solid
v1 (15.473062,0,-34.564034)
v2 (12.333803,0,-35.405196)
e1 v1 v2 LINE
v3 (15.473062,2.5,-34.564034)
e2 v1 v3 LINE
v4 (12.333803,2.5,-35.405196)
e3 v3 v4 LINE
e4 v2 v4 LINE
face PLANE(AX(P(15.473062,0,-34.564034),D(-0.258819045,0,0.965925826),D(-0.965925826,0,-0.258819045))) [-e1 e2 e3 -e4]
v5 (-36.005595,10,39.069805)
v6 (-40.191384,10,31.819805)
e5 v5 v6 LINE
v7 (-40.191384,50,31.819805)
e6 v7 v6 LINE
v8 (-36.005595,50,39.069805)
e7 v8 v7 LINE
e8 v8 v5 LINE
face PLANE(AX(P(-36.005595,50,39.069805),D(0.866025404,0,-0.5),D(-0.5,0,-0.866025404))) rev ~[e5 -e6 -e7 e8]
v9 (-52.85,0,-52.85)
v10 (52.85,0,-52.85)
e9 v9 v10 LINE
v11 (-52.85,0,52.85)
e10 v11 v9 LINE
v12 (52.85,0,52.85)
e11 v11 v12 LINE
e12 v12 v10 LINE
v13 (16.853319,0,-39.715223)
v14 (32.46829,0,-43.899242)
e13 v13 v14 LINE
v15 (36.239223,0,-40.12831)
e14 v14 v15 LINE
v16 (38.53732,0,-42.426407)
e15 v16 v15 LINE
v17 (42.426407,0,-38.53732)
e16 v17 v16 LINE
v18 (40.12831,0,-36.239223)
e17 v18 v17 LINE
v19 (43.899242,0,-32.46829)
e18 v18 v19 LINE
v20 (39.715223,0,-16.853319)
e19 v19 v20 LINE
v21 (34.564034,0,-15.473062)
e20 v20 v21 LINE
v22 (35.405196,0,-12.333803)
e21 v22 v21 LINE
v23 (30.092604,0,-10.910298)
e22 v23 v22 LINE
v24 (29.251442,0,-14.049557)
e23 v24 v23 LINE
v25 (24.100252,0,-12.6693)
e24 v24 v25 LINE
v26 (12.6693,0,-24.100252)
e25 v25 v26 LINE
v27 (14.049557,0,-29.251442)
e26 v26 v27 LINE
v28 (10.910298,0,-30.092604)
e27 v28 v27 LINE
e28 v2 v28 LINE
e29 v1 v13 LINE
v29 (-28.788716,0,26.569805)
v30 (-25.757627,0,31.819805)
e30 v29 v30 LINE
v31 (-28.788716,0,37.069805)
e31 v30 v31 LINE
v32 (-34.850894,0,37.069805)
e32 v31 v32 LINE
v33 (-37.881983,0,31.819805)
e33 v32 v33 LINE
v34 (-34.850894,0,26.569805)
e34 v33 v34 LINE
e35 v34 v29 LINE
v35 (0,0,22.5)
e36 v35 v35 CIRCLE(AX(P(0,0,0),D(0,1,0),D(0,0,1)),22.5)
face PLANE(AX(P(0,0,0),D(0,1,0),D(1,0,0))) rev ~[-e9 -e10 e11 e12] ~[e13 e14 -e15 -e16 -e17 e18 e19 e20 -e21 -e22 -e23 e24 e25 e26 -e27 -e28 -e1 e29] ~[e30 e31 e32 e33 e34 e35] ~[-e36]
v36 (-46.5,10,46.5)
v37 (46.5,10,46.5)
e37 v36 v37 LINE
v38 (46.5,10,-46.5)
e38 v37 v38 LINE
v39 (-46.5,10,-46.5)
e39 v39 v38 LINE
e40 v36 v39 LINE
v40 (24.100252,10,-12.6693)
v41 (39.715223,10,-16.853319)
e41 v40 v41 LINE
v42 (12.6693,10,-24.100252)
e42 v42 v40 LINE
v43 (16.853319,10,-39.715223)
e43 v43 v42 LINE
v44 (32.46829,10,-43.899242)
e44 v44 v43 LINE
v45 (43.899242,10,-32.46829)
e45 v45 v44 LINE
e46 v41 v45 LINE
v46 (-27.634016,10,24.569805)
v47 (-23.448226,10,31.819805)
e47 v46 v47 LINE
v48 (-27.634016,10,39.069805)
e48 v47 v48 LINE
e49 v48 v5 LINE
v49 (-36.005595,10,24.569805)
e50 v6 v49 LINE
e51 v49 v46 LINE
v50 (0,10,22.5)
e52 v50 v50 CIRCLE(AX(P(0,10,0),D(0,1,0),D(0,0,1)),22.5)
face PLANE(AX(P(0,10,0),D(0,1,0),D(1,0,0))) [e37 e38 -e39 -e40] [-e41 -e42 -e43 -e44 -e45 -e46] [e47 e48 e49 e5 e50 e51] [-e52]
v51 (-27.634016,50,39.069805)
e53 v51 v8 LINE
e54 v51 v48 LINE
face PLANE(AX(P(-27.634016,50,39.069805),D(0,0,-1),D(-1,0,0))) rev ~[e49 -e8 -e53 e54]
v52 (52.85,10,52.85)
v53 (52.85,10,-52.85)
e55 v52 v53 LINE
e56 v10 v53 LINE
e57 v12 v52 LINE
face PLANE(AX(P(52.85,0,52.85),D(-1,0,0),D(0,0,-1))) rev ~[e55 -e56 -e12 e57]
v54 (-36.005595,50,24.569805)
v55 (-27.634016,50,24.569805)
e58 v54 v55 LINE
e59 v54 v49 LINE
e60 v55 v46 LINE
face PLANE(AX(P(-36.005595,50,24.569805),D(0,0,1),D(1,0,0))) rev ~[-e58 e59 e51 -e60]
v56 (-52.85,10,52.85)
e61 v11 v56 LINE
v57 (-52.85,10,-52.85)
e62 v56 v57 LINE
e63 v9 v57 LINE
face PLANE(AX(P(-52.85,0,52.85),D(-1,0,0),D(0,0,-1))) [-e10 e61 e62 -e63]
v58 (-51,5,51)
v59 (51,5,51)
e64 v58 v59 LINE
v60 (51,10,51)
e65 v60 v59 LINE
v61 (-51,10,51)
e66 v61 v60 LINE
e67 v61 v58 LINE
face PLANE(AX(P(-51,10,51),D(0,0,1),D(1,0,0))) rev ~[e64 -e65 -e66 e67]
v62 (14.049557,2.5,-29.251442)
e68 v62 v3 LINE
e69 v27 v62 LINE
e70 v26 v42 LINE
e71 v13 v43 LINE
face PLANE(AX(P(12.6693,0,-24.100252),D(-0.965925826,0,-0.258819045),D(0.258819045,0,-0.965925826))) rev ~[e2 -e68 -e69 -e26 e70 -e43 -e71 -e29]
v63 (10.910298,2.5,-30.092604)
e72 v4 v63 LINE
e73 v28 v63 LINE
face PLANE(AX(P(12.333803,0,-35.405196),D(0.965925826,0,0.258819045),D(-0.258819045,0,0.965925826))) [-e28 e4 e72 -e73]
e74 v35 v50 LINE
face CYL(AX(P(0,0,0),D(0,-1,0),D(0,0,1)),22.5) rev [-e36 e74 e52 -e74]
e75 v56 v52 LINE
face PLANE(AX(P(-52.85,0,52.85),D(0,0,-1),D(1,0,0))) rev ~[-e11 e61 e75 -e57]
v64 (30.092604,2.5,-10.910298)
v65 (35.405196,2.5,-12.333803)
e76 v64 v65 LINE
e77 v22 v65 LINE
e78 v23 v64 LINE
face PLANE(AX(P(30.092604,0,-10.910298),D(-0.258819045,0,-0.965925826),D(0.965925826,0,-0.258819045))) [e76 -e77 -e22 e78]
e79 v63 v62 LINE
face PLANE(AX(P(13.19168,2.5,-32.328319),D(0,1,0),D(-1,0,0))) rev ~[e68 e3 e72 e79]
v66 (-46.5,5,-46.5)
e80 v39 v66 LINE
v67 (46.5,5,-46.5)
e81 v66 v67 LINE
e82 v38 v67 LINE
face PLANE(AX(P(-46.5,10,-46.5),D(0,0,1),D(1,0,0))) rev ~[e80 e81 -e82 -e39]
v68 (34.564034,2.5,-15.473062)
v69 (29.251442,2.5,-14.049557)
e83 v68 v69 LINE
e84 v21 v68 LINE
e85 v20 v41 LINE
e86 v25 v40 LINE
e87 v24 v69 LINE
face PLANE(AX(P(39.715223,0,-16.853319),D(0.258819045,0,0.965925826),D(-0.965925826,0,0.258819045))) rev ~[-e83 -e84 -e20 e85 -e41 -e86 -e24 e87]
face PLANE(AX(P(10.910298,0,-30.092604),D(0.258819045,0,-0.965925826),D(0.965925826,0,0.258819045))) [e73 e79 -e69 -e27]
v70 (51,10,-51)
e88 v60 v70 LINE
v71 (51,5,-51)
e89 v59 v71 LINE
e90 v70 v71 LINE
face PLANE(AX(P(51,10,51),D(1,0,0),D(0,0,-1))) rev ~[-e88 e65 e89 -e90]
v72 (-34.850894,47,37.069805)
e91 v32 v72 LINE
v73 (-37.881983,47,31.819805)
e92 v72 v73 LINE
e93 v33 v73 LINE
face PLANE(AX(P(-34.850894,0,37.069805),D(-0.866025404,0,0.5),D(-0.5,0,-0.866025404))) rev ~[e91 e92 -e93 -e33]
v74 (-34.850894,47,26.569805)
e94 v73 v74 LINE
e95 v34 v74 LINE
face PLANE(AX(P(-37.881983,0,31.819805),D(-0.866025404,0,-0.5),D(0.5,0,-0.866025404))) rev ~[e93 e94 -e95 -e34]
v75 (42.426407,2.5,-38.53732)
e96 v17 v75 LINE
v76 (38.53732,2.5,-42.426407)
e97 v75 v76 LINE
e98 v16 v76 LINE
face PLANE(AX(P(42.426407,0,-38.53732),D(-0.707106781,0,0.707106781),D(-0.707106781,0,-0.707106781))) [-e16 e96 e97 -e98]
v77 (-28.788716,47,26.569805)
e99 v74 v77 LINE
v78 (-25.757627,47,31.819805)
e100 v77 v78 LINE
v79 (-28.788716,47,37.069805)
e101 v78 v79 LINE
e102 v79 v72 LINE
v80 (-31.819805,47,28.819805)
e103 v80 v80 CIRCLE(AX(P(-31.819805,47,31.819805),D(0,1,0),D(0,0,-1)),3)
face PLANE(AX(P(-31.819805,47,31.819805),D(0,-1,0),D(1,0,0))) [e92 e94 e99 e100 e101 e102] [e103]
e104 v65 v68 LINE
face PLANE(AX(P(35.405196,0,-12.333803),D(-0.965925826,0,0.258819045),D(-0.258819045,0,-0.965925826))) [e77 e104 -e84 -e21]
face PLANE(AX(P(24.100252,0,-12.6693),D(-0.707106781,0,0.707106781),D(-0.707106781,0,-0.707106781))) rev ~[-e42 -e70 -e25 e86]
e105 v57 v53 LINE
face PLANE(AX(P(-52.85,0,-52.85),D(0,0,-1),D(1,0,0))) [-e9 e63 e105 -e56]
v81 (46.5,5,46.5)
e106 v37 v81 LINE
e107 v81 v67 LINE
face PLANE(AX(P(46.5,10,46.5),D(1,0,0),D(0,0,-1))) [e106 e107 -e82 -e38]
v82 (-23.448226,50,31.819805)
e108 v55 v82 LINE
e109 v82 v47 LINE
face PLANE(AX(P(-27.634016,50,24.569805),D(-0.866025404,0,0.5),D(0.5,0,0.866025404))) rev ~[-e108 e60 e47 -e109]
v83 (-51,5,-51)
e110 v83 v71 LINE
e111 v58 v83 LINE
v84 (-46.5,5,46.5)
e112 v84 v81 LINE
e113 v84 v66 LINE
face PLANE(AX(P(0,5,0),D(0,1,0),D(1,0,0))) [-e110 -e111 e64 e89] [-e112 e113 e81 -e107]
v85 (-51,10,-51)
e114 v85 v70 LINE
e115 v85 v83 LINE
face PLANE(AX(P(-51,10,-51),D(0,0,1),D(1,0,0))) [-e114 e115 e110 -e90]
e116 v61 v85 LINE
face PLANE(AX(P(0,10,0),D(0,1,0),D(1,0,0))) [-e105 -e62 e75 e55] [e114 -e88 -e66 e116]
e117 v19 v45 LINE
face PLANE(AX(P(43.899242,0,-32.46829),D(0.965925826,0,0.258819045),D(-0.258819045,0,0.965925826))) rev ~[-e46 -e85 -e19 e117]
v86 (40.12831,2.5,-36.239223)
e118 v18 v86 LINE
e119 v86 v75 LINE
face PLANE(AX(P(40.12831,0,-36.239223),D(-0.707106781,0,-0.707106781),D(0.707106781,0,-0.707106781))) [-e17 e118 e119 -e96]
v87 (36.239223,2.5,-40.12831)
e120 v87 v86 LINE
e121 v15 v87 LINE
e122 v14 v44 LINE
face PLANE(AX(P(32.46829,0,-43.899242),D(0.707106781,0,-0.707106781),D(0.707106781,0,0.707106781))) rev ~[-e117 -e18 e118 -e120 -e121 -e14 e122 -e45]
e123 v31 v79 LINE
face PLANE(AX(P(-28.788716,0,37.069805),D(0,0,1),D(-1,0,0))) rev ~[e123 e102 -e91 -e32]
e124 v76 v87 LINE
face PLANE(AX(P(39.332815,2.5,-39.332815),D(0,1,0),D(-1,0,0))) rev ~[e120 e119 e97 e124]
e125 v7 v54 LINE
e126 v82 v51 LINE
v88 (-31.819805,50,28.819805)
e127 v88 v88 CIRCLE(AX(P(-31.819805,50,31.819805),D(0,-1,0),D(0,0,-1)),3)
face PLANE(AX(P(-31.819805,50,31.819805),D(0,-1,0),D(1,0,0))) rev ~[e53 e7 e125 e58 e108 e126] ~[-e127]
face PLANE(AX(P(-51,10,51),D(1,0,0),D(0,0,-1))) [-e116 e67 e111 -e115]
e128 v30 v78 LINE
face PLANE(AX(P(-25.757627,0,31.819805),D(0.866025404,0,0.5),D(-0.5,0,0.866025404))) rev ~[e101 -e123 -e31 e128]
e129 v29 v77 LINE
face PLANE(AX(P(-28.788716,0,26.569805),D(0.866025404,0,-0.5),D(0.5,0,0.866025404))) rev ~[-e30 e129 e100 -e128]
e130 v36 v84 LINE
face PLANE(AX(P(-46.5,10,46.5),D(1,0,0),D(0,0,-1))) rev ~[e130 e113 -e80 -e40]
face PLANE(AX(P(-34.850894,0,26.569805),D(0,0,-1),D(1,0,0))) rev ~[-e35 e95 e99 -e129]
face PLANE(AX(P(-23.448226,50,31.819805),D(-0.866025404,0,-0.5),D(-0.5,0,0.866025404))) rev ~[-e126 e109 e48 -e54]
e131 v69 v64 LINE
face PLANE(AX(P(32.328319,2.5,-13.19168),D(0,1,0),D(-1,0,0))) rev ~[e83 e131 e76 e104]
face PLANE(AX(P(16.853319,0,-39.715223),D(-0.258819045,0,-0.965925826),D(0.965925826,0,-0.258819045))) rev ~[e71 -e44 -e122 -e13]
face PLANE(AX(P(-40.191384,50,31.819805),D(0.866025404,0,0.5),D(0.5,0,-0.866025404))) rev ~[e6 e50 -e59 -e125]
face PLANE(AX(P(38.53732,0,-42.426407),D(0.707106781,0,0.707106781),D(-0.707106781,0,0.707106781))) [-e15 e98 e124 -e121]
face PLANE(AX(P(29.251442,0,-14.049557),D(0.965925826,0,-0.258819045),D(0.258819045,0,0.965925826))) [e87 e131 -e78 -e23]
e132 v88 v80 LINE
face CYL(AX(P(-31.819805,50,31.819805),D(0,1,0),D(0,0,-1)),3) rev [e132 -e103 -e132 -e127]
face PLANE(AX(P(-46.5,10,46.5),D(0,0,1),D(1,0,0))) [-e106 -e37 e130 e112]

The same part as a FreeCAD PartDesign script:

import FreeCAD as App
import Part
import Sketcher
Q = App.Units.Quantity

doc = App.newDocument("Part")
body = doc.addObject("PartDesign::Body", "Body")

# Sketch on XZ plane
sketch1 = body.newObject("Sketcher::SketchObject", "Sketch")
sketch1.AttachmentSupport = (doc.getObject("XZ_Plane"), [""])
sketch1.MapMode = "FlatFace"
sketch1.addGeometry([
    Part.LineSegment(App.Vector(-53, -53, 0), App.Vector(-53, 53, 0)),  # 0
    Part.LineSegment(App.Vector(-53, 53, 0), App.Vector(53, 53, 0)),  # 1
    Part.LineSegment(App.Vector(53, 53, 0), App.Vector(53, -53, 0)),  # 2
    Part.LineSegment(App.Vector(53, -53, 0), App.Vector(-53, -53, 0)),  # 3
    Part.Circle(App.Vector(0, 0, 0), App.Vector(0, 0, 1), 22),  # 4
], False)
sketch1.addConstraint([
    Sketcher.Constraint("Coincident", 0, 2, 1, 1),
    Sketcher.Constraint("Coincident", 1, 2, 2, 1),
    Sketcher.Constraint("Coincident", 2, 2, 3, 1),
    Sketcher.Constraint("Coincident", 3, 2, 0, 1),
    Sketcher.Constraint("Vertical", 0),
    Sketcher.Constraint("Horizontal", 1),
    Sketcher.Constraint("Vertical", 2),
    Sketcher.Constraint("Horizontal", 3),
    Sketcher.Constraint("Coincident", 4, 3, -1, 1),
    Sketcher.Constraint("Symmetric", 0, 2, 2, 2, -1, 1),
    Sketcher.Constraint("Equal", 3, 0),
    Sketcher.Constraint("Diameter", 4, Q("45 mm")),
    Sketcher.Constraint("DistanceX", 1, 1, 1, 2, Q("105.7 mm")),
])
pad1 = body.newObject("PartDesign::Pad", "Pad")
pad1.Profile = sketch1
pad1.Length = 10
pad1.Reversed = True

# Sketch on XZ plane
sketch2 = body.newObject("Sketcher::SketchObject", "Sketch001")
sketch2.AttachmentSupport = (doc.getObject("XZ_Plane"), [""])
sketch2.MapMode = "FlatFace"
sketch2.AttachmentOffset = App.Placement(App.Vector(0, 0, -10), App.Rotation())
sketch2.addGeometry([
    Part.LineSegment(App.Vector(-51, -51, 0), App.Vector(-51, 51, 0)),  # 0
    Part.LineSegment(App.Vector(-51, 51, 0), App.Vector(51, 51, 0)),  # 1
    Part.LineSegment(App.Vector(51, 51, 0), App.Vector(51, -51, 0)),  # 2
    Part.LineSegment(App.Vector(51, -51, 0), App.Vector(-51, -51, 0)),  # 3
    Part.LineSegment(App.Vector(46, 46, 0), App.Vector(-46, 46, 0)),  # 4
    Part.LineSegment(App.Vector(-46, 46, 0), App.Vector(-46, -46, 0)),  # 5
    Part.LineSegment(App.Vector(-46, -46, 0), App.Vector(46, -46, 0)),  # 6
    Part.LineSegment(App.Vector(46, -46, 0), App.Vector(46, 46, 0)),  # 7
], False)
sketch2.addConstraint([
    Sketcher.Constraint("Coincident", 0, 2, 1, 1),
    Sketcher.Constraint("Coincident", 1, 2, 2, 1),
    Sketcher.Constraint("Coincident", 2, 2, 3, 1),
    Sketcher.Constraint("Coincident", 3, 2, 0, 1),
    Sketcher.Constraint("Coincident", 4, 2, 5, 1),
    Sketcher.Constraint("Coincident", 5, 2, 6, 1),
    Sketcher.Constraint("Coincident", 6, 2, 7, 1),
    Sketcher.Constraint("Coincident", 7, 2, 4, 1),
    Sketcher.Constraint("Vertical", 0),
    Sketcher.Constraint("Horizontal", 1),
    Sketcher.Constraint("Vertical", 2),
    Sketcher.Constraint("Horizontal", 3),
    Sketcher.Constraint("Horizontal", 4),
    Sketcher.Constraint("Vertical", 5),
    Sketcher.Constraint("Horizontal", 6),
    Sketcher.Constraint("Vertical", 7),
    Sketcher.Constraint("Symmetric", 0, 2, 2, 2, -1, 1),
    Sketcher.Constraint("Symmetric", 4, 2, 6, 2, -1, 1),
    Sketcher.Constraint("Equal", 3, 0),
    Sketcher.Constraint("Equal", 6, 5),
    Sketcher.Constraint("DistanceX", 1, 1, 1, 2, Q("102 mm")),
    Sketcher.Constraint("DistanceX", 4, 2, 4, 1, Q("93 mm")),
])
pocket1 = body.newObject("PartDesign::Pocket", "Pocket")
pocket1.Profile = sketch2
pocket1.Length = 5
pocket1.Reversed = True

# Sketch on XZ plane
sketch3 = body.newObject("Sketcher::SketchObject", "Sketch002")
sketch3.AttachmentSupport = (doc.getObject("XZ_Plane"), [""])
sketch3.MapMode = "FlatFace"
sketch3.AttachmentOffset = App.Placement(App.Vector(0, 0, -10), App.Rotation())
sketch3.addGeometry(Part.Circle(App.Vector(-31.8, 31.8, 0), App.Vector(0, 0, 1), 3), False)
sketch3.addConstraint([
    Sketcher.Constraint("Diameter", 0, Q("6 mm")),
    Sketcher.Constraint("DistanceX", 0, 3, -1, 1, Q("31.819805 mm")),
    Sketcher.Constraint("DistanceY", -1, 1, 0, 3, Q("31.819805 mm")),
])
pocket2 = body.newObject("PartDesign::Pocket", "Pocket001")
pocket2.Profile = sketch3
pocket2.Type = "ThroughAll"
pocket2.Reversed = True

# Sketch on XZ plane
sketch4 = body.newObject("Sketcher::SketchObject", "Sketch003")
sketch4.AttachmentSupport = (doc.getObject("XZ_Plane"), [""])
sketch4.MapMode = "FlatFace"
sketch4.AttachmentOffset = App.Placement(App.Vector(0, 0, -10), App.Rotation())
sketch4.addGeometry(Part.Circle(App.Vector(28, -28, 0), App.Vector(0, 0, 1), 10), False)
sketch4.addConstraint([
    Sketcher.Constraint("Diameter", 0, Q("20.75 mm")),
    Sketcher.Constraint("DistanceX", -1, 1, 0, 3, Q("28.284271 mm")),
    Sketcher.Constraint("DistanceY", 0, 3, -1, 1, Q("28.284271 mm")),
])
pocket3 = body.newObject("PartDesign::Pocket", "Pocket002")
pocket3.Profile = sketch4
pocket3.Type = "ThroughAll"
pocket3.Reversed = True

# Sketch on XZ plane
sketch5 = body.newObject("Sketcher::SketchObject", "Sketch004")
sketch5.AttachmentSupport = (doc.getObject("XZ_Plane"), [""])
sketch5.MapMode = "FlatFace"
sketch5.addGeometry([
    Part.LineSegment(App.Vector(44, -32, 0), App.Vector(40, -17, 0)),  # 0
    Part.LineSegment(App.Vector(40, -17, 0), App.Vector(24, -13, 0)),  # 1
    Part.LineSegment(App.Vector(24, -13, 0), App.Vector(13, -24, 0)),  # 2
    Part.LineSegment(App.Vector(13, -24, 0), App.Vector(17, -40, 0)),  # 3
    Part.LineSegment(App.Vector(17, -40, 0), App.Vector(32, -44, 0)),  # 4
    Part.LineSegment(App.Vector(32, -44, 0), App.Vector(44, -32, 0)),  # 5
], False)
sketch5.addConstraint([
    Sketcher.Constraint("Coincident", 0, 2, 1, 1),
    Sketcher.Constraint("Coincident", 1, 2, 2, 1),
    Sketcher.Constraint("Coincident", 2, 2, 3, 1),
    Sketcher.Constraint("Coincident", 3, 2, 4, 1),
    Sketcher.Constraint("Coincident", 4, 2, 5, 1),
    Sketcher.Constraint("Coincident", 5, 2, 0, 1),
    Sketcher.Constraint("Parallel", 0, 3),
    Sketcher.Constraint("Parallel", 1, 4),
    Sketcher.Constraint("Parallel", 2, 5),
    Sketcher.Constraint("Equal", 0, 1),
    Sketcher.Constraint("Equal", 1, 2),
    Sketcher.Constraint("Equal", 2, 3),
    Sketcher.Constraint("Angle", 0, Q("105 deg")),
    Sketcher.Constraint("Angle", 1, Q("165 deg")),
    Sketcher.Constraint("Angle", 2, Q("-135 deg")),
    Sketcher.Constraint("DistanceY", 1, 2, -1, 1, Q("12.6693 mm")),
    Sketcher.Constraint("DistanceX", -1, 1, 2, 2, Q("12.6693 mm")),
    Sketcher.Constraint("DistanceY", 0, 2, -1, 1, Q("16.853319 mm")),
])
pocket4 = body.newObject("PartDesign::Pocket", "Pocket003")
pocket4.Profile = sketch5
pocket4.Type = "ThroughAll"

# Sketch on XZ plane
sketch6 = body.newObject("Sketcher::SketchObject", "Sketch005")
sketch6.AttachmentSupport = (doc.getObject("XZ_Plane"), [""])
sketch6.MapMode = "FlatFace"
sketch6.AttachmentOffset = App.Placement(App.Vector(0, 0, -50), App.Rotation())
sketch6.addGeometry([
    Part.LineSegment(App.Vector(-23.4, 31.8, 0), App.Vector(-27.6, 39.1, 0)),  # 0
    Part.LineSegment(App.Vector(-27.6, 39.1, 0), App.Vector(-36, 39.1, 0)),  # 1
    Part.LineSegment(App.Vector(-36, 39.1, 0), App.Vector(-40.2, 31.8, 0)),  # 2
    Part.LineSegment(App.Vector(-40.2, 31.8, 0), App.Vector(-36, 24.6, 0)),  # 3
    Part.LineSegment(App.Vector(-36, 24.6, 0), App.Vector(-27.6, 24.6, 0)),  # 4
    Part.LineSegment(App.Vector(-27.6, 24.6, 0), App.Vector(-23.4, 31.8, 0)),  # 5
    Part.Circle(App.Vector(-31.8, 31.8, 0), App.Vector(0, 0, 1), 3),  # 6
], False)
sketch6.addConstraint([
    Sketcher.Constraint("Coincident", 0, 2, 1, 1),
    Sketcher.Constraint("Coincident", 1, 2, 2, 1),
    Sketcher.Constraint("Coincident", 2, 2, 3, 1),
    Sketcher.Constraint("Coincident", 3, 2, 4, 1),
    Sketcher.Constraint("Coincident", 4, 2, 5, 1),
    Sketcher.Constraint("Coincident", 5, 2, 0, 1),
    Sketcher.Constraint("Horizontal", 1),
    Sketcher.Constraint("Horizontal", 4),
    Sketcher.Constraint("Parallel", 0, 3),
    Sketcher.Constraint("Parallel", 2, 5),
    Sketcher.Constraint("Horizontal", 6, 3, 2, 2),
    Sketcher.Constraint("Horizontal", 2, 2, 5, 2),
    Sketcher.Constraint("Vertical", 1, 2, 3, 2),
    Sketcher.Constraint("Vertical", 0, 2, 4, 2),
    Sketcher.Constraint("Diameter", 6, Q("6 mm")),
    Sketcher.Constraint("Angle", 0, Q("120 deg")),
    Sketcher.Constraint("DistanceY", 3, 2, 1, 2, Q("14.5 mm")),
    Sketcher.Constraint("DistanceX", 1, 2, 1, 1, Q("8.371579 mm")),
    Sketcher.Constraint("DistanceX", 6, 3, 0, 2, Q("4.185789 mm")),
    Sketcher.Constraint("DistanceX", 6, 3, -1, 1, Q("31.819805 mm")),
    Sketcher.Constraint("DistanceY", -1, 1, 6, 3, Q("31.819805 mm")),
])
pad2 = body.newObject("PartDesign::Pad", "Pad001")
pad2.Profile = sketch6
pad2.Length = 40

# Sketch on XZ plane
sketch7 = body.newObject("Sketcher::SketchObject", "Sketch006")
sketch7.AttachmentSupport = (doc.getObject("XZ_Plane"), [""])
sketch7.MapMode = "FlatFace"
sketch7.addGeometry([
    Part.LineSegment(App.Vector(-26, 32, 0), App.Vector(-29, 37, 0)),  # 0
    Part.LineSegment(App.Vector(-29, 37, 0), App.Vector(-35, 37, 0)),  # 1
    Part.LineSegment(App.Vector(-35, 37, 0), App.Vector(-38, 32, 0)),  # 2
    Part.LineSegment(App.Vector(-38, 32, 0), App.Vector(-35, 27, 0)),  # 3
    Part.LineSegment(App.Vector(-35, 27, 0), App.Vector(-29, 27, 0)),  # 4
    Part.LineSegment(App.Vector(-29, 27, 0), App.Vector(-26, 32, 0)),  # 5
], False)
sketch7.addConstraint([
    Sketcher.Constraint("Coincident", 0, 2, 1, 1),
    Sketcher.Constraint("Coincident", 1, 2, 2, 1),
    Sketcher.Constraint("Coincident", 2, 2, 3, 1),
    Sketcher.Constraint("Coincident", 3, 2, 4, 1),
    Sketcher.Constraint("Coincident", 4, 2, 5, 1),
    Sketcher.Constraint("Coincident", 5, 2, 0, 1),
    Sketcher.Constraint("Horizontal", 1),
    Sketcher.Constraint("Horizontal", 4),
    Sketcher.Constraint("Parallel", 0, 3),
    Sketcher.Constraint("Parallel", 2, 5),
    Sketcher.Constraint("Horizontal", 2, 2, 5, 2),
    Sketcher.Constraint("Vertical", 1, 2, 3, 2),
    Sketcher.Constraint("Vertical", 0, 2, 4, 2),
    Sketcher.Constraint("Angle", 0, Q("120 deg")),
    Sketcher.Constraint("DistanceY", 3, 2, 1, 2, Q("10.5 mm")),
    Sketcher.Constraint("DistanceX", 1, 2, 1, 1, Q("6.062178 mm")),
    Sketcher.Constraint("DistanceX", 0, 2, -1, 1, Q("28.788716 mm")),
    Sketcher.Constraint("DistanceY", -1, 1, 0, 2, Q("37.069805 mm")),
])
pocket5 = body.newObject("PartDesign::Pocket", "Pocket004")
pocket5.Profile = sketch7
pocket5.Length = 47

# Sketch on XZ plane
sketch8 = body.newObject("Sketcher::SketchObject", "Sketch007")
sketch8.AttachmentSupport = (doc.getObject("XZ_Plane"), [""])
sketch8.MapMode = "FlatFace"
sketch8.addGeometry([
    Part.LineSegment(App.Vector(30.1, -10.9, 0), App.Vector(29.3, -14, 0)),  # 0
    Part.LineSegment(App.Vector(29.3, -14, 0), App.Vector(34.6, -15.5, 0)),  # 1
    Part.LineSegment(App.Vector(34.6, -15.5, 0), App.Vector(35.4, -12.3, 0)),  # 2
    Part.LineSegment(App.Vector(35.4, -12.3, 0), App.Vector(30.1, -10.9, 0)),  # 3
    Part.LineSegment(App.Vector(40.1, -36.2, 0), App.Vector(36.2, -40.1, 0)),  # 4
    Part.LineSegment(App.Vector(36.2, -40.1, 0), App.Vector(38.5, -42.4, 0)),  # 5
    Part.LineSegment(App.Vector(38.5, -42.4, 0), App.Vector(42.4, -38.5, 0)),  # 6
    Part.LineSegment(App.Vector(42.4, -38.5, 0), App.Vector(40.1, -36.2, 0)),  # 7
    Part.LineSegment(App.Vector(15.5, -34.6, 0), App.Vector(14, -29.3, 0)),  # 8
    Part.LineSegment(App.Vector(14, -29.3, 0), App.Vector(10.9, -30.1, 0)),  # 9
    Part.LineSegment(App.Vector(10.9, -30.1, 0), App.Vector(12.3, -35.4, 0)),  # 10
    Part.LineSegment(App.Vector(12.3, -35.4, 0), App.Vector(15.5, -34.6, 0)),  # 11
], False)
sketch8.addConstraint([
    Sketcher.Constraint("Coincident", 0, 2, 1, 1),
    Sketcher.Constraint("Coincident", 1, 2, 2, 1),
    Sketcher.Constraint("Coincident", 2, 2, 3, 1),
    Sketcher.Constraint("Coincident", 3, 2, 0, 1),
    Sketcher.Constraint("Coincident", 4, 2, 5, 1),
    Sketcher.Constraint("Coincident", 5, 2, 6, 1),
    Sketcher.Constraint("Coincident", 6, 2, 7, 1),
    Sketcher.Constraint("Coincident", 7, 2, 4, 1),
    Sketcher.Constraint("Coincident", 8, 2, 9, 1),
    Sketcher.Constraint("Coincident", 9, 2, 10, 1),
    Sketcher.Constraint("Coincident", 10, 2, 11, 1),
    Sketcher.Constraint("Coincident", 11, 2, 8, 1),
    Sketcher.Constraint("Perpendicular", 0, 1),
    Sketcher.Constraint("Perpendicular", 1, 2),
    Sketcher.Constraint("Perpendicular", 2, 3),
    Sketcher.Constraint("Perpendicular", 4, 5),
    Sketcher.Constraint("Perpendicular", 5, 6),
    Sketcher.Constraint("Perpendicular", 6, 7),
    Sketcher.Constraint("Perpendicular", 8, 9),
    Sketcher.Constraint("Perpendicular", 9, 10),
    Sketcher.Constraint("Perpendicular", 10, 11),
    Sketcher.Constraint("Equal", 3, 4),
    Sketcher.Constraint("Equal", 2, 5),
    Sketcher.Constraint("Equal", 6, 8),
    Sketcher.Constraint("Equal", 7, 9),
    Sketcher.Constraint("Angle", 0, Q("-105 deg")),
    Sketcher.Constraint("Angle", 4, Q("-135 deg")),
    Sketcher.Constraint("Angle", 8, Q("105 deg")),
    Sketcher.Constraint("Distance", 1, Q("5.5 mm")),
    Sketcher.Constraint("Distance", 0, Q("3.25 mm")),
    Sketcher.Constraint("DistanceY", 3, 2, -1, 1, Q("10.910298 mm")),
    Sketcher.Constraint("DistanceX", -1, 1, 9, 2, Q("10.910298 mm")),
    Sketcher.Constraint("DistanceX", -1, 1, 0, 2, Q("29.251442 mm")),
    Sketcher.Constraint("DistanceY", 4, 2, -1, 1, Q("40.12831 mm")),
    Sketcher.Constraint("DistanceX", -1, 1, 5, 2, Q("38.53732 mm")),
    Sketcher.Constraint("DistanceY", 8, 2, -1, 1, Q("29.251442 mm")),
])
pocket6 = body.newObject("PartDesign::Pocket", "Pocket005")
pocket6.Profile = sketch8
pocket6.Length = 2.5

doc.recompute()
